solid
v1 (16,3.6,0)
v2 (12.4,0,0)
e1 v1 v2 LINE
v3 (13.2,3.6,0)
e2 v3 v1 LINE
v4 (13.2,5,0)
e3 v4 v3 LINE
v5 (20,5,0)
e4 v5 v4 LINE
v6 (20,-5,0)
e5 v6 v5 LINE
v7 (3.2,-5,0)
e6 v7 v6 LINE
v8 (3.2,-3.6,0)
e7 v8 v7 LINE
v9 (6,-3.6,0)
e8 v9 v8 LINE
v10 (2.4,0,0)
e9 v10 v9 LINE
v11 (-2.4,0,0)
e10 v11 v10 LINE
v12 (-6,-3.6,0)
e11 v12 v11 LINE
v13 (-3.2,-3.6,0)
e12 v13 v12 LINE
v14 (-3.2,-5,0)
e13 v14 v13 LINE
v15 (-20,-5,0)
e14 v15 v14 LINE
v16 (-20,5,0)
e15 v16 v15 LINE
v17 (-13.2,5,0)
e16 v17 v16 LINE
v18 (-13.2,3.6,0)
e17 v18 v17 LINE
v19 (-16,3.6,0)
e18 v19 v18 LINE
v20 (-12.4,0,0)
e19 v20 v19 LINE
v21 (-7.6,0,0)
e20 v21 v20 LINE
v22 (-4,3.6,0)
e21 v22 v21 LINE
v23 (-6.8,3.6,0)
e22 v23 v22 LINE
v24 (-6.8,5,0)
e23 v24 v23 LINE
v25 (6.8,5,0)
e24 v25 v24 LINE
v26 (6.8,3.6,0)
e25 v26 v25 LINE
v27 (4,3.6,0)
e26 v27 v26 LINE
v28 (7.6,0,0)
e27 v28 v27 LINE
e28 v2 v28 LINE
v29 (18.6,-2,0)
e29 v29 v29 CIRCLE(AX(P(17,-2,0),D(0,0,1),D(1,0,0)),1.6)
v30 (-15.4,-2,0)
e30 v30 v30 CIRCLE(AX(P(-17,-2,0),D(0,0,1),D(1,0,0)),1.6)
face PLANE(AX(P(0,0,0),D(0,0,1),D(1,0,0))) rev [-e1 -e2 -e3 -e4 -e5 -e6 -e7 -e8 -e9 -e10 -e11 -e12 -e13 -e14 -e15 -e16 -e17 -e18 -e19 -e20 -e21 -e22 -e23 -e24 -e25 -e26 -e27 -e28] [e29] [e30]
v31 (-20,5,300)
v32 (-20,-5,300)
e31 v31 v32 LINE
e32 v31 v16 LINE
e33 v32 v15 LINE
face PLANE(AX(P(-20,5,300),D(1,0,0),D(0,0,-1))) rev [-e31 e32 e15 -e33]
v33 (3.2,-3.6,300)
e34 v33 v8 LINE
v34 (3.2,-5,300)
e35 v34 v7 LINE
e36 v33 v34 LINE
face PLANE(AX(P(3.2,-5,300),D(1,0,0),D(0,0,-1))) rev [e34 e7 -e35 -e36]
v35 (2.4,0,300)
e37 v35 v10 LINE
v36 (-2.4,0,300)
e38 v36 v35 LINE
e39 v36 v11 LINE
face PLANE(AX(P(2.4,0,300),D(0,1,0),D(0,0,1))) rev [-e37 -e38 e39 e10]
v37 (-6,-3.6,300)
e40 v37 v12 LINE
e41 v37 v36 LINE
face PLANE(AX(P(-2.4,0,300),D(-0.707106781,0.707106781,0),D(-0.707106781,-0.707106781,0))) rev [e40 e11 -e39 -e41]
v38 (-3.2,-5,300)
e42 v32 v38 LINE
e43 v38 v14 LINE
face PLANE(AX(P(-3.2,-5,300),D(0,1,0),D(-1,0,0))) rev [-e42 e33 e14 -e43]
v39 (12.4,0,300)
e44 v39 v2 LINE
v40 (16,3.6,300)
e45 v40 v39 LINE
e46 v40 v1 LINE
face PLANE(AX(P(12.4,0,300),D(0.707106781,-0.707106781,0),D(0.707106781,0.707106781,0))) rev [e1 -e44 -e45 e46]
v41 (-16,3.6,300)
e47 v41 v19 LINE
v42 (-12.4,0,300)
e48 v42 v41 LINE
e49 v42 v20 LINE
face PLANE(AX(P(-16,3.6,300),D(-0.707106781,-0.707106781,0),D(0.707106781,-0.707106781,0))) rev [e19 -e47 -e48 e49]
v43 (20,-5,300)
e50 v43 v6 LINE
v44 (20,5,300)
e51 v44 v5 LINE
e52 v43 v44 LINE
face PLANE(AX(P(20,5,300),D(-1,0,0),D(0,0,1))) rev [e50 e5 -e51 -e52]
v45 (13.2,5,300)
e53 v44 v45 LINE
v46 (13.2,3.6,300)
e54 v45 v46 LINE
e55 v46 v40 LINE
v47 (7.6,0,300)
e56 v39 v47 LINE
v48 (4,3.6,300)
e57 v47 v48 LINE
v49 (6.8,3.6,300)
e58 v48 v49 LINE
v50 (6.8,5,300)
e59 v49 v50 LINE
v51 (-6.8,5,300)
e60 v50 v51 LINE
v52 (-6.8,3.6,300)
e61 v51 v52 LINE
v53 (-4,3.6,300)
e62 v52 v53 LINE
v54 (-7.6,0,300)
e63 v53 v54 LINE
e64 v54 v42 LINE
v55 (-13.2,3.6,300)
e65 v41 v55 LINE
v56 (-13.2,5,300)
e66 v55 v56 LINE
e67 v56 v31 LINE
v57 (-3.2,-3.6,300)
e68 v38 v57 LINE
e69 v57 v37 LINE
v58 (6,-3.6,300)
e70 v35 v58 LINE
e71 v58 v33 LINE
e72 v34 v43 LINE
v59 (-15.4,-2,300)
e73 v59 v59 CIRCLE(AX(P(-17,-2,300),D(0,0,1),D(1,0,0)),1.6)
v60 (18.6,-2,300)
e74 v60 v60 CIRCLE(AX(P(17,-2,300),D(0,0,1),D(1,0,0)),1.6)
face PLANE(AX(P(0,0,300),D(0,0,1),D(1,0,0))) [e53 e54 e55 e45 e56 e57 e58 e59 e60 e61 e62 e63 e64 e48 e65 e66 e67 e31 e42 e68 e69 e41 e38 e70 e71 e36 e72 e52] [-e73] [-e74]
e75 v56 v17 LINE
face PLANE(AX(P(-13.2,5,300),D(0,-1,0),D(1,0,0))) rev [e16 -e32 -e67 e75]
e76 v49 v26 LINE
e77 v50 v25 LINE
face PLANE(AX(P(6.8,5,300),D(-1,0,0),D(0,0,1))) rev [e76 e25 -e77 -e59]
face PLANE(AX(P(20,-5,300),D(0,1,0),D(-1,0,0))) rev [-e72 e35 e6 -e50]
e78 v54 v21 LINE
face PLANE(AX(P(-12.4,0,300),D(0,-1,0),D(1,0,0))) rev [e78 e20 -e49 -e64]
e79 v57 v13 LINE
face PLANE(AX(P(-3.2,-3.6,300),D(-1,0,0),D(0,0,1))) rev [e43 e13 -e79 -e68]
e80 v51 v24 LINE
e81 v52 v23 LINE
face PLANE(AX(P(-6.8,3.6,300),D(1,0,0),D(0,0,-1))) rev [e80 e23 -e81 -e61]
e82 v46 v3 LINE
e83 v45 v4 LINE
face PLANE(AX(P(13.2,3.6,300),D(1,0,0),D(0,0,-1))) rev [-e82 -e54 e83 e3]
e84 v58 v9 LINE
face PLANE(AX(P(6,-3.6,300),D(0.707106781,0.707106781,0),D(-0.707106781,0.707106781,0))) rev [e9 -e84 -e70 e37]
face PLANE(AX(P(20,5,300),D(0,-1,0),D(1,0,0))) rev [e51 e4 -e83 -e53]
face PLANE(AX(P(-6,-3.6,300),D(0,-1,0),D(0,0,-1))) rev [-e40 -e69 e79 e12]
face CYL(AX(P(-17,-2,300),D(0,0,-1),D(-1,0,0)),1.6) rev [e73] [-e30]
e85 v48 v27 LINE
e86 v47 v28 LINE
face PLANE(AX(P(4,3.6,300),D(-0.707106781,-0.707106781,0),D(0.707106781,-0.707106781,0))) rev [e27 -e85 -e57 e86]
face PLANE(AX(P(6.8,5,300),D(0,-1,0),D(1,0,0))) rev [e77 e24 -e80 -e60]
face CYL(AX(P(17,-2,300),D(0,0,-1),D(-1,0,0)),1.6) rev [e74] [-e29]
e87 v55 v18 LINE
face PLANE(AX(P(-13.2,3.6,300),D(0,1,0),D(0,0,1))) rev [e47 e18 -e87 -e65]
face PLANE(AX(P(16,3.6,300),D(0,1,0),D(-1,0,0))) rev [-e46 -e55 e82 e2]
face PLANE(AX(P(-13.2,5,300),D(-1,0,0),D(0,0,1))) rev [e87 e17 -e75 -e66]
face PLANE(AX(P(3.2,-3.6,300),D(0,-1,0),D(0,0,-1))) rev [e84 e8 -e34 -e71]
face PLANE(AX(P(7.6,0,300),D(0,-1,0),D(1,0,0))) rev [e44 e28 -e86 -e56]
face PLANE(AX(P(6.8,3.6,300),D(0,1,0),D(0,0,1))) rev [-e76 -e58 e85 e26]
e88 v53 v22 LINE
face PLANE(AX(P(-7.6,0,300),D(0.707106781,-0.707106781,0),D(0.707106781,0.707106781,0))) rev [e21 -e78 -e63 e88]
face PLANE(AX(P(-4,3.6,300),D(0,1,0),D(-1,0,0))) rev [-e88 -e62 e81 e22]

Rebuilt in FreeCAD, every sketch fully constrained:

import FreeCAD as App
import Part
import Sketcher
from FreeCAD import Vector
Q = App.Units.Quantity

doc = App.newDocument("Part")
body = doc.addObject("PartDesign::Body", "Body")

sketch1 = body.newObject("Sketcher::SketchObject", "Sketch")
sketch1.AttachmentSupport = (doc.getObject("XY_Plane"), [""])
sketch1.MapMode = "FlatFace"
sketch1.addGeometry([
    Part.LineSegment(Vector(-13.2, 3.6, 0), Vector(-13.2, 5, 0)),
    Part.LineSegment(Vector(-13.2, 5, 0), Vector(-20, 5, 0)),
    Part.LineSegment(Vector(-20, 5, 0), Vector(-20, -5, 0)),
    Part.LineSegment(Vector(-20, -5, 0), Vector(-3.2, -5, 0)),
    Part.LineSegment(Vector(-3.2, -5, 0), Vector(-3.2, -3.6, 0)),
    Part.LineSegment(Vector(-3.2, -3.6, 0), Vector(-6, -3.6, 0)),
    Part.LineSegment(Vector(-6, -3.6, 0), Vector(-2.4, 0, 0)),
    Part.LineSegment(Vector(-2.4, 0, 0), Vector(2.4, 0, 0)),
    Part.LineSegment(Vector(2.4, 0, 0), Vector(6, -3.6, 0)),
    Part.LineSegment(Vector(6, -3.6, 0), Vector(3.2, -3.6, 0)),
    Part.LineSegment(Vector(3.2, -3.6, 0), Vector(3.2, -5, 0)),
    Part.LineSegment(Vector(3.2, -5, 0), Vector(20, -5, 0)),
    Part.LineSegment(Vector(20, -5, 0), Vector(20, 5, 0)),
    Part.LineSegment(Vector(20, 5, 0), Vector(13.2, 5, 0)),
    Part.LineSegment(Vector(13.2, 5, 0), Vector(13.2, 3.6, 0)),
    Part.LineSegment(Vector(13.2, 3.6, 0), Vector(16, 3.6, 0)),
    Part.LineSegment(Vector(16, 3.6, 0), Vector(12.4, 0, 0)),
    Part.LineSegment(Vector(12.4, 0, 0), Vector(7.6, 0, 0)),
    Part.LineSegment(Vector(7.6, 0, 0), Vector(4, 3.6, 0)),
    Part.LineSegment(Vector(4, 3.6, 0), Vector(6.8, 3.6, 0)),
    Part.LineSegment(Vector(6.8, 3.6, 0), Vector(6.8, 5, 0)),
    Part.LineSegment(Vector(6.8, 5, 0), Vector(-6.8, 5, 0)),
    Part.LineSegment(Vector(-6.8, 5, 0), Vector(-6.8, 3.6, 0)),
    Part.LineSegment(Vector(-6.8, 3.6, 0), Vector(-4, 3.6, 0)),
    Part.LineSegment(Vector(-4, 3.6, 0), Vector(-7.6, 0, 0)),
    Part.LineSegment(Vector(-7.6, 0, 0), Vector(-12.4, 0, 0)),
    Part.LineSegment(Vector(-12.4, 0, 0), Vector(-16, 3.6, 0)),
    Part.LineSegment(Vector(-16, 3.6, 0), Vector(-13.2, 3.6, 0)),
    Part.Circle(Vector(17, -2, 0), Vector(0, 0, 1), 1.6),
    Part.Circle(Vector(-17, -2, 0), Vector(0, 0, 1), 1.6),
], False)
sketch1.addConstraint([
    Sketcher.Constraint("Coincident", 0, 2, 1, 1),
    Sketcher.Constraint("Coincident", 1, 2, 2, 1),
    Sketcher.Constraint("Coincident", 2, 2, 3, 1),
    Sketcher.Constraint("Coincident", 3, 2, 4, 1),
    Sketcher.Constraint("Coincident", 4, 2, 5, 1),
    Sketcher.Constraint("Coincident", 5, 2, 6, 1),
    Sketcher.Constraint("Coincident", 6, 2, 7, 1),
    Sketcher.Constraint("Coincident", 7, 2, 8, 1),
    Sketcher.Constraint("Coincident", 8, 2, 9, 1),
    Sketcher.Constraint("Coincident", 9, 2, 10, 1),
    Sketcher.Constraint("Coincident", 10, 2, 11, 1),
    Sketcher.Constraint("Coincident", 11, 2, 12, 1),
    Sketcher.Constraint("Coincident", 12, 2, 13, 1),
    Sketcher.Constraint("Coincident", 13, 2, 14, 1),
    Sketcher.Constraint("Coincident", 14, 2, 15, 1),
    Sketcher.Constraint("Coincident", 15, 2, 16, 1),
    Sketcher.Constraint("Coincident", 16, 2, 17, 1),
    Sketcher.Constraint("Coincident", 17, 2, 18, 1),
    Sketcher.Constraint("Coincident", 18, 2, 19, 1),
    Sketcher.Constraint("Coincident", 19, 2, 20, 1),
    Sketcher.Constraint("Coincident", 20, 2, 21, 1),
    Sketcher.Constraint("Coincident", 21, 2, 22, 1),
    Sketcher.Constraint("Coincident", 22, 2, 23, 1),
    Sketcher.Constraint("Coincident", 23, 2, 24, 1),
    Sketcher.Constraint("Coincident", 24, 2, 25, 1),
    Sketcher.Constraint("Coincident", 25, 2, 26, 1),
    Sketcher.Constraint("Coincident", 26, 2, 27, 1),
    Sketcher.Constraint("Coincident", 27, 2, 0, 1),
    Sketcher.Constraint("Vertical", 0),
    Sketcher.Constraint("Horizontal", 1),
    Sketcher.Constraint("Vertical", 2),
    Sketcher.Constraint("Horizontal", 3),
    Sketcher.Constraint("Vertical", 4),
    Sketcher.Constraint("Horizontal", 5),
    Sketcher.Constraint("Horizontal", 7),
    Sketcher.Constraint("Horizontal", 9),
    Sketcher.Constraint("Vertical", 10),
    Sketcher.Constraint("Horizontal", 11),
    Sketcher.Constraint("Vertical", 12),
    Sketcher.Constraint("Horizontal", 13),
    Sketcher.Constraint("Vertical", 14),
    Sketcher.Constraint("Horizontal", 15),
    Sketcher.Constraint("Horizontal", 17),
    Sketcher.Constraint("Horizontal", 19),
    Sketcher.Constraint("Vertical", 20),
    Sketcher.Constraint("Horizontal", 21),
    Sketcher.Constraint("Vertical", 22),
    Sketcher.Constraint("Horizontal", 23),
    Sketcher.Constraint("Horizontal", 25),
    Sketcher.Constraint("Horizontal", 27),
    Sketcher.Constraint("Equal", 28, 29),
    Sketcher.Constraint("Symmetric", 6, 2, 7, 2, -1, 1),
    Sketcher.Constraint("Symmetric", 1, 2, 11, 2, -1, 1),
    Sketcher.Constraint("Symmetric", 17, 2, 24, 2, -1, 1),
    Sketcher.Constraint("Symmetric", 28, 3, 29, 3, -2),
    Sketcher.Constraint("Symmetric", 5, 2, 8, 2, -2),
    Sketcher.Constraint("Symmetric", 3, 2, 10, 2, -2),
    Sketcher.Constraint("Symmetric", 0, 2, 13, 2, -2),
    Sketcher.Constraint("Symmetric", 19, 2, 22, 2, -2),
    Sketcher.Constraint("Symmetric", 16, 2, 25, 2, -2),
    Sketcher.Constraint("Symmetric", 15, 2, 26, 2, -2),
    Sketcher.Constraint("Perpendicular", 6, 8),
    Sketcher.Constraint("Perpendicular", 8, 16),
    Sketcher.Constraint("Perpendicular", 16, 18),
    Sketcher.Constraint("Perpendicular", 18, 24),
    Sketcher.Constraint("Horizontal", 15, 2, 18, 2),
    Sketcher.Constraint("Horizontal", 13, 2, 20, 2),
    Sketcher.Constraint("Equal", 9, 15),
    Sketcher.Constraint("Equal", 7, 17),
    Sketcher.Constraint("Equal", 15, 19),
    Sketcher.Constraint("Equal", 0, 4),
    Sketcher.Constraint("Diameter", 28, Q("3.2 mm")),
    Sketcher.Constraint("DistanceY", 2, 2, 2, 1, Q("10 mm")),
    Sketcher.Constraint("DistanceX", 1, 2, 1, 1, Q("6.8 mm")),
    Sketcher.Constraint("DistanceX", 3, 1, 3, 2, Q("16.8 mm")),
    Sketcher.Constraint("DistanceX", 5, 2, 5, 1, Q("2.8 mm")),
    Sketcher.Constraint("DistanceX", 7, 1, 7, 2, Q("4.8 mm")),
    Sketcher.Constraint("DistanceX", 21, 2, 21, 1, Q("13.6 mm")),
    Sketcher.Constraint("DistanceX", -1, 1, 28, 3, Q("17 mm")),
    Sketcher.Constraint("DistanceY", 28, 3, -1, 1, Q("2 mm")),
])
pad1 = body.newObject("PartDesign::Pad", "Pad")
pad1.Profile = sketch1
pad1.Length = 300

doc.recompute()
